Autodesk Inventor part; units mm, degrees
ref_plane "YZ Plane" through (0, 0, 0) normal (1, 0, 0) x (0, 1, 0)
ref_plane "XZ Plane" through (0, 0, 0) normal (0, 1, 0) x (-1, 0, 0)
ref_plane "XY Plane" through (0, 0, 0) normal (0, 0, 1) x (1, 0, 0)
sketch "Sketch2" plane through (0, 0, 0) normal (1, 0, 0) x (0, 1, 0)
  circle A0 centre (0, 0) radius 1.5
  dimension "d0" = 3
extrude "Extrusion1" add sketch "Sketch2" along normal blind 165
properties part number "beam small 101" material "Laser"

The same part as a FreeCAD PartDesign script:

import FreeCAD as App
import Part
import Sketcher
from FreeCAD import Vector
Q = App.Units.Quantity

doc = App.newDocument("Part")
body = doc.addObject("PartDesign::Body", "Body")

# Sketch on YZ plane
sketch1 = doc.addObject("Sketcher::SketchObject", "Sketch")
body.addObject(sketch1)
sketch1.AttachmentSupport = (doc.YZ_Plane, [""])
sketch1.MapMode = "FlatFace"
sketch1.addGeometry(Part.Circle(Vector(0, 0, 0), Vector(0, 0, 1), 1.5), False)
sketch1.addConstraint(Sketcher.Constraint("Coincident", 0, 3, -1, 1))
sketch1.addConstraint(Sketcher.Constraint("Diameter", 0, Q("3 mm")))
pad1 = doc.addObject("PartDesign::Pad", "Pad")
body.addObject(pad1)
pad1.Profile = sketch1
pad1.Length = 165

doc.recompute()
